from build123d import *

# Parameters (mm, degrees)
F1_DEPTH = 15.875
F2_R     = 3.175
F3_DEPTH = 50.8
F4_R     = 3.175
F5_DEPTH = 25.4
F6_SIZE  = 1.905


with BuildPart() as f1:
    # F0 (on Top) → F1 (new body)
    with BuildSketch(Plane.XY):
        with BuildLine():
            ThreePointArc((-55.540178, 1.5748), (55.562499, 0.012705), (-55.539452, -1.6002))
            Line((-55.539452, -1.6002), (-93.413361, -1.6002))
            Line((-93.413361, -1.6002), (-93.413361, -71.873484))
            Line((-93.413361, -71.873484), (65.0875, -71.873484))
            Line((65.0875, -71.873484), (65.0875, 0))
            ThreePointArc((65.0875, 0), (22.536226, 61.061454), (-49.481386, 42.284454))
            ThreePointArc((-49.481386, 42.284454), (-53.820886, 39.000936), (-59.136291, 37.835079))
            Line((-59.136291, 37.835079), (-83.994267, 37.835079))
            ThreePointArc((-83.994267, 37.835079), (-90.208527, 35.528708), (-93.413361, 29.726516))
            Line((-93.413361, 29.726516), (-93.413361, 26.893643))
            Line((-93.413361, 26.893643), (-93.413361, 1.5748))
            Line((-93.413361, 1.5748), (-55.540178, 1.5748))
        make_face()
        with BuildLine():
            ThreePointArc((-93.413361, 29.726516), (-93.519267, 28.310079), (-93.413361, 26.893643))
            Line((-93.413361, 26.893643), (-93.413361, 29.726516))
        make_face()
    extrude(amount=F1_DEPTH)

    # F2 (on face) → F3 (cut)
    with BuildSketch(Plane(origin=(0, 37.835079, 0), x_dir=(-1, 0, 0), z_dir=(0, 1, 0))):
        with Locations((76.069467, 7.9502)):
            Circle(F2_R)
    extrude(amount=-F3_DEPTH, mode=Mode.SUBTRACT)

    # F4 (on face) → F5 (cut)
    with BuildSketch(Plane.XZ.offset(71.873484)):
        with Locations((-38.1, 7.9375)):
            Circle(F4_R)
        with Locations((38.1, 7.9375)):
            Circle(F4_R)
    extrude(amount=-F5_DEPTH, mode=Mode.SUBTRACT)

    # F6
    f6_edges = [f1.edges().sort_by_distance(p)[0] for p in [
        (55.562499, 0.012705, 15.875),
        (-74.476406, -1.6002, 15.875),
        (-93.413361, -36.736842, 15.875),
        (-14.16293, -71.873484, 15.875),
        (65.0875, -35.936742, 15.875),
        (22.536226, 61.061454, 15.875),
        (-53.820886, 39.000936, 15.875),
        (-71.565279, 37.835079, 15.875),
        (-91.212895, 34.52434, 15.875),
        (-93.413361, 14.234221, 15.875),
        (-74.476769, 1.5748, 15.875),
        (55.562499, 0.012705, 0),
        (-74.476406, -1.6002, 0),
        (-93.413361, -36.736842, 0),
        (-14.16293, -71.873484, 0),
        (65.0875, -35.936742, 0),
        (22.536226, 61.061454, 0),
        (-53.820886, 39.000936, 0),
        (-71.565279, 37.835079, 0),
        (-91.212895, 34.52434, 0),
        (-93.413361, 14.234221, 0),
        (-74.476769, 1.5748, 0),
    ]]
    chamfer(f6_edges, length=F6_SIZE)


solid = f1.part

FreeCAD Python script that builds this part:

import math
import FreeCAD as App
import Part
import Sketcher
Q = App.Units.Quantity


def edges_at(feature, points):
    """Names of the edges that pass closest to the given points."""
    edges = feature.Shape.Edges
    near = lambda p: min(range(len(edges)), key=lambda i: edges[i].distToShape(Part.Vertex(*p))[0])
    return sorted({f"Edge{near(p) + 1}" for p in points})

doc = App.newDocument("Part")
params = doc.addObject("Spreadsheet::Sheet", "Params")
for row, (alias, value) in enumerate([
    ("sketch1_radius", "2.1875 in"),
    ("sketch1_radius2", "2.5625 in"),
    ("sketch1_radius3", "0.375 in"),
    ("sketch1_radius4", "0.3749998 in"),
    ("pad1_length", "0.625 in"),
    ("sketch2_diameter", "0.25 in"),
    ("pocket1_length", "2 in"),
    ("sketch3_diameter", "0.25 in"),
    ("pocket2_length", "1 in"),
    ("chamfer_size", "0.075 in"),
], start=1):
    params.set(f"A{row}", alias)
    params.set(f"B{row}", "=" + value)
    params.setAlias(f"B{row}", alias)

body = doc.addObject("PartDesign::Body", "Body")

# Sketch on XY plane
sketch1 = body.newObject("Sketcher::SketchObject", "Sketch")
sketch1.AttachmentSupport = (doc.getObject("XY_Plane"), [""])
sketch1.MapMode = "FlatFace"
sketch1.addGeometry(Part.ArcOfCircle(Part.Circle(App.Vector(0, 0, 0), App.Vector(0, 0, 1), 55.6), math.radians(-178), math.radians(178)), False)
sketch1.addGeometry(Part.LineSegment(App.Vector(-55.5, -1.6, 0), App.Vector(-93.4, -1.6, 0)), False)
sketch1.addGeometry(Part.LineSegment(App.Vector(-93.4, -1.6, 0), App.Vector(-93.4, -71.9, 0)), False)
sketch1.addGeometry(Part.LineSegment(App.Vector(-93.4, -71.9, 0), App.Vector(65.1, -71.9, 0)), False)
sketch1.addGeometry(Part.LineSegment(App.Vector(65.1, -71.9, 0), App.Vector(65.1, 0, 0)), False)
sketch1.addGeometry(Part.ArcOfCircle(Part.Circle(App.Vector(0, 0, 0), App.Vector(0, 0, 1), 65.1), math.radians(0), math.radians(139)), False)
sketch1.addGeometry(Part.ArcOfCircle(Part.Circle(App.Vector(-59.1, 50.5, 0), App.Vector(0, 0, 1), 12.7), math.radians(-90), math.radians(-41)), False)
sketch1.addGeometry(Part.LineSegment(App.Vector(-59.1, 37.8, 0), App.Vector(-84, 37.8, 0)), False)
sketch1.addGeometry(Part.ArcOfCircle(Part.Circle(App.Vector(-84, 28.3, 0), App.Vector(0, 0, 1), 9.5), math.radians(90), math.radians(171)), False)
sketch1.addGeometry(Part.ArcOfCircle(Part.Circle(App.Vector(-84, 28.3, 0), App.Vector(0, 0, 1), 9.5), math.radians(171.45), math.radians(188.55)), False)
sketch1.addGeometry(Part.LineSegment(App.Vector(-93.4, 26.9, 0), App.Vector(-93.4, 1.6, 0)), False)
sketch1.addGeometry(Part.LineSegment(App.Vector(-93.4, 1.6, 0), App.Vector(-55.5, 1.6, 0)), False)
sketch1.addConstraint(Sketcher.Constraint("Coincident", 0, 1, 1, 1))
sketch1.addConstraint(Sketcher.Constraint("Coincident", 1, 2, 2, 1))
sketch1.addConstraint(Sketcher.Constraint("Coincident", 2, 2, 3, 1))
sketch1.addConstraint(Sketcher.Constraint("Coincident", 3, 2, 4, 1))
sketch1.addConstraint(Sketcher.Constraint("Tangent", 4, 2, 5, 1))
sketch1.addConstraint(Sketcher.Constraint("Tangent", 5, 2, 6, 2))
sketch1.addConstraint(Sketcher.Constraint("Tangent", 6, 1, 7, 1))
sketch1.addConstraint(Sketcher.Constraint("Tangent", 7, 2, 8, 1))
sketch1.addConstraint(Sketcher.Constraint("Tangent", 8, 2, 9, 1))
sketch1.addConstraint(Sketcher.Constraint("Coincident", 9, 2, 10, 1))
sketch1.addConstraint(Sketcher.Constraint("Coincident", 10, 2, 11, 1))
sketch1.addConstraint(Sketcher.Constraint("Coincident", 11, 2, 0, 2))
sketch1.addConstraint(Sketcher.Constraint("Horizontal", 1))
sketch1.addConstraint(Sketcher.Constraint("Vertical", 2))
sketch1.addConstraint(Sketcher.Constraint("Horizontal", 3))
sketch1.addConstraint(Sketcher.Constraint("Vertical", 4))
sketch1.addConstraint(Sketcher.Constraint("Horizontal", 7))
sketch1.addConstraint(Sketcher.Constraint("Vertical", 10))
sketch1.addConstraint(Sketcher.Constraint("Horizontal", 11))
sketch1.addConstraint(Sketcher.Constraint("Coincident", 0, 3, -1, 1))
sketch1.addConstraint(Sketcher.Constraint("Coincident", 5, 3, -1, 1))
sketch1.addConstraint(Sketcher.Constraint("Vertical", 2, 2, 8, 2))
sketch1.addConstraint(Sketcher.Constraint("Vertical", 8, 2, 9, 2))
sketch1.addConstraint(Sketcher.Constraint("Radius", 0, Q("2.1875 in")))
sketch1.addConstraint(Sketcher.Constraint("Radius", 5, Q("2.5625 in")))
sketch1.addConstraint(Sketcher.Constraint("Radius", 8, Q("0.375 in")))
sketch1.addConstraint(Sketcher.Constraint("Radius", 9, Q("0.3749998 in")))
sketch1.addConstraint(Sketcher.Constraint("DistanceY", 0, 1, -1, 1, Q("0.063 in")))
sketch1.addConstraint(Sketcher.Constraint("DistanceY", -1, 1, 10, 2, Q("0.062 in")))
sketch1.addConstraint(Sketcher.Constraint("Radius", 6, 12.700007))
sketch1.addConstraint(Sketcher.Constraint("DistanceX", 1, 2, 1, 1, 37.873909))
sketch1.addConstraint(Sketcher.Constraint("DistanceX", 7, 2, 7, 1, 24.857976))
sketch1.addConstraint(Sketcher.Constraint("DistanceY", 2, 2, 2, 1, 70.273284))
sketch1.addConstraint(Sketcher.Constraint("DistanceY", 10, 2, 10, 1, 25.318843))
sketch1.setExpression("Constraints[23]", "Params.sketch1_radius")
sketch1.setExpression("Constraints[24]", "Params.sketch1_radius2")
sketch1.setExpression("Constraints[25]", "Params.sketch1_radius3")
sketch1.setExpression("Constraints[26]", "Params.sketch1_radius4")
pad1 = body.newObject("PartDesign::Pad", "Pad")
pad1.Profile = sketch1
pad1.setExpression("Length", "Params.pad1_length")

# Sketch on XZ plane
sketch2 = body.newObject("Sketcher::SketchObject", "Sketch001")
sketch2.AttachmentSupport = (doc.getObject("XZ_Plane"), [""])
sketch2.MapMode = "FlatFace"
sketch2.AttachmentOffset = App.Placement(App.Vector(0, 0, -37.835079), App.Rotation())
sketch2.addGeometry(Part.Circle(App.Vector(-76.1, 8, 0), App.Vector(0, 0, 1), 3.2), False)
sketch2.addConstraint(Sketcher.Constraint("Diameter", 0, Q("0.25 in")))
sketch2.addConstraint(Sketcher.Constraint("DistanceY", -1, 1, 0, 3, Q("0.313 in")))
sketch2.addConstraint(Sketcher.Constraint("DistanceX", 0, 3, -1, 1, 76.069467))
sketch2.setExpression("Constraints[0]", "Params.sketch2_diameter")
pocket1 = body.newObject("PartDesign::Pocket", "Pocket")
pocket1.Profile = sketch2
pocket1.setExpression("Length", "Params.pocket1_length")
pocket1.Reversed = True

# Sketch on XZ plane
sketch3 = body.newObject("Sketcher::SketchObject", "Sketch002")
sketch3.AttachmentSupport = (doc.getObject("XZ_Plane"), [""])
sketch3.MapMode = "FlatFace"
sketch3.AttachmentOffset = App.Placement(App.Vector(0, 0, 71.873484), App.Rotation())
sketch3.addGeometry(Part.Circle(App.Vector(-38.1, 7.9, 0), App.Vector(0, 0, 1), 3.2), False)
sketch3.addGeometry(Part.Circle(App.Vector(38.1, 7.9, 0), App.Vector(0, 0, 1), 3.2), False)
sketch3.addConstraint(Sketcher.Constraint("Equal", 0, 1))
sketch3.addConstraint(Sketcher.Constraint("Symmetric", 0, 3, 1, 3, -2))
sketch3.addConstraint(Sketcher.Constraint("Diameter", 0, Q("0.25 in")))
sketch3.addConstraint(Sketcher.Constraint("DistanceX", 0, 3, 1, 3, Q("3 in")))
sketch3.addConstraint(Sketcher.Constraint("DistanceY", -1, 1, 0, 3, Q("0.3125 in")))
sketch3.setExpression("Constraints[2]", "Params.sketch3_diameter")
pocket2 = body.newObject("PartDesign::Pocket", "Pocket001")
pocket2.Profile = sketch3
pocket2.setExpression("Length", "Params.pocket2_length")
doc.recompute()

chamfer = body.newObject("PartDesign::Chamfer", "Chamfer")
chamfer.Base = (pocket2, edges_at(pocket2, [
    (55.562, 0.013, 15.875),
    (-74.476, -1.6, 15.875),
    (-93.413, -36.737, 15.875),
    (-14.163, -71.873, 15.875),
    (65.088, -35.937, 15.875),
    (22.536, 61.061, 15.875),
    (-53.821, 39.001, 15.875),
    (-71.565, 37.835, 15.875),
    (-90.209, 35.529, 15.875),
    (-93.413, 14.234, 15.875),
    (-74.477, 1.575, 15.875),
    (55.562, 0.013, 0),
    (-74.476, -1.6, 0),
    (-93.413, -36.737, 0),
    (-14.163, -71.873, 0),
    (65.088, -35.937, 0),
    (22.536, 61.061, 0),
    (-53.821, 39.001, 0),
    (-71.565, 37.835, 0),
    (-90.209, 35.529, 0),
    (-93.413, 14.234, 0),
    (-74.477, 1.575, 0),
]))
chamfer.setExpression("Size", "Params.chamfer_size")

doc.recompute()
